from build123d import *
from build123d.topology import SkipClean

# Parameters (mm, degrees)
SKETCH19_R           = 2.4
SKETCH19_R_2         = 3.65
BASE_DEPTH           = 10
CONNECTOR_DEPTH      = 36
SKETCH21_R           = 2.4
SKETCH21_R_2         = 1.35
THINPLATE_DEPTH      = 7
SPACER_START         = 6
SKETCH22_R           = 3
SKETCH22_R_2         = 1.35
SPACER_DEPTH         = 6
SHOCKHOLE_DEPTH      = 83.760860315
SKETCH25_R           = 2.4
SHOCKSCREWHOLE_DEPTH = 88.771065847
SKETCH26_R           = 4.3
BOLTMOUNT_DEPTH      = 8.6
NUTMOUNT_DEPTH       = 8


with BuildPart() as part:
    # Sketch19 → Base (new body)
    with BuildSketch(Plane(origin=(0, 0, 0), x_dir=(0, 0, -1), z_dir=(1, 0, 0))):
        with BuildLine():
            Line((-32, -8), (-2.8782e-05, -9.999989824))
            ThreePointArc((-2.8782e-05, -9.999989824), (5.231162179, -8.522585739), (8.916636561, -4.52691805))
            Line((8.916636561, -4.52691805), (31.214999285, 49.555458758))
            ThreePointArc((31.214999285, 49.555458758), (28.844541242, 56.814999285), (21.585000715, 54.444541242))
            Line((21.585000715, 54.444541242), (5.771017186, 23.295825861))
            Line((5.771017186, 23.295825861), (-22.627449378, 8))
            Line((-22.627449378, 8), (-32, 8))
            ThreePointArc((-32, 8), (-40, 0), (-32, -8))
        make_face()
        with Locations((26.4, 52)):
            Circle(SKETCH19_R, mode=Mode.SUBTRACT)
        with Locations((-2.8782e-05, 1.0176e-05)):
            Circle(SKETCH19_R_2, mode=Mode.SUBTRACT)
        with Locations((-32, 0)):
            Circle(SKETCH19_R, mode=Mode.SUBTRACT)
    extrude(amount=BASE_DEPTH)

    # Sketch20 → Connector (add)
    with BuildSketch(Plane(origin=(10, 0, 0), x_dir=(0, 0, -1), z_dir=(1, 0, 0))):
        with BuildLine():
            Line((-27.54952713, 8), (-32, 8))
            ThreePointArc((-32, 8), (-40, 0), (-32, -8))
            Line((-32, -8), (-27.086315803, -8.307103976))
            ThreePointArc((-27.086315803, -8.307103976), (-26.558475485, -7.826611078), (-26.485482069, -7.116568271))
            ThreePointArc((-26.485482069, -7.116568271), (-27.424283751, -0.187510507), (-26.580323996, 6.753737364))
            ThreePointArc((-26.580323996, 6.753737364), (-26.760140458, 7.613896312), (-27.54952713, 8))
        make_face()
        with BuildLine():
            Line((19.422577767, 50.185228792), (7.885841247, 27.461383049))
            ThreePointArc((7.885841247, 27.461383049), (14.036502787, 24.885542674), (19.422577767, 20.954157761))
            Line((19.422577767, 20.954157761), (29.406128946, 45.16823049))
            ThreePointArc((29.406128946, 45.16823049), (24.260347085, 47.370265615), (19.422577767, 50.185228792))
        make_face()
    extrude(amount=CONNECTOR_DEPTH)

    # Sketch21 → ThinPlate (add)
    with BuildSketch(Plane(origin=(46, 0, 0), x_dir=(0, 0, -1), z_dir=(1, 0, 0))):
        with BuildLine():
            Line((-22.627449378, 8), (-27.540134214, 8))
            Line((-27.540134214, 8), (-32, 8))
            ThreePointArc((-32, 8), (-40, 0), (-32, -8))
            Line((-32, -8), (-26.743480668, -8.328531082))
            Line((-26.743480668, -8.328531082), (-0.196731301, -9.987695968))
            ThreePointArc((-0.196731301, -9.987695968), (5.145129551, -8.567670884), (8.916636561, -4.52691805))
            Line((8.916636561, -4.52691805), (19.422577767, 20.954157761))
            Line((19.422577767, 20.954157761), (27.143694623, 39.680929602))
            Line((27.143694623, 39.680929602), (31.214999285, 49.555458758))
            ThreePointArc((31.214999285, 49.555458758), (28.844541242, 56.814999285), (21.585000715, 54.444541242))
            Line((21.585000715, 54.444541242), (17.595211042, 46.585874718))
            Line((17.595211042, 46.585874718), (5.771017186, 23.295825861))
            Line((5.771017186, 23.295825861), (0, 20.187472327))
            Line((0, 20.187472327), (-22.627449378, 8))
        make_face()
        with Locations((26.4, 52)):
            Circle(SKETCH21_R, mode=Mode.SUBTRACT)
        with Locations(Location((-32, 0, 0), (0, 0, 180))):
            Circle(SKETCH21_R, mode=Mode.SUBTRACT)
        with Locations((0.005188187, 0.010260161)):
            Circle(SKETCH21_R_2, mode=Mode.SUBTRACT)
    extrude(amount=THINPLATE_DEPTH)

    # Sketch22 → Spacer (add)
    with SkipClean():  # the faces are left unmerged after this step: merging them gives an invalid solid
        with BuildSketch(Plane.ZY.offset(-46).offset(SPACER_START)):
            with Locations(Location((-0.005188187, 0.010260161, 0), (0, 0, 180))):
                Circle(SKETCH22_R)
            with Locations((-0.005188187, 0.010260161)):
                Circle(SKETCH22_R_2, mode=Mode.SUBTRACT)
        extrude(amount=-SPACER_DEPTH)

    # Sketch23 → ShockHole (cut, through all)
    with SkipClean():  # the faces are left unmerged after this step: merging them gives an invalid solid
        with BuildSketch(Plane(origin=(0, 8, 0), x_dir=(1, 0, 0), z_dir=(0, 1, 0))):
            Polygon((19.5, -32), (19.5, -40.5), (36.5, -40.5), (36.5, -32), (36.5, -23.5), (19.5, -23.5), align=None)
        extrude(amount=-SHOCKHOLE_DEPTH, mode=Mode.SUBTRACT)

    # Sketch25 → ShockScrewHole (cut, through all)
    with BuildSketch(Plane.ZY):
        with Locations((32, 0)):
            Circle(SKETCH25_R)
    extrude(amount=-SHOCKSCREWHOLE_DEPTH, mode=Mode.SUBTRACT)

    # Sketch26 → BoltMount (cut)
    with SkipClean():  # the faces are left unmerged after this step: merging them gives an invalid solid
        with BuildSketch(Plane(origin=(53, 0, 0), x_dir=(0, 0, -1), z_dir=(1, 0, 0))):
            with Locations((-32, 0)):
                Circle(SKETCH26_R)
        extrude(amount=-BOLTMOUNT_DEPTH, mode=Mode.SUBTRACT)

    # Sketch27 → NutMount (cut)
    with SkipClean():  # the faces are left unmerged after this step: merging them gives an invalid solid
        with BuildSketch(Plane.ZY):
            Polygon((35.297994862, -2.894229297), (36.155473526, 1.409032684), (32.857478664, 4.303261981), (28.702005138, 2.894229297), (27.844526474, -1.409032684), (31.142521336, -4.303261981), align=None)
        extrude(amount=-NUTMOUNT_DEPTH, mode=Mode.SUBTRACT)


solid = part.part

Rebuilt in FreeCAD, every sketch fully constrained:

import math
import FreeCAD as App
import Part
import Sketcher
Q = App.Units.Quantity


def add_polygon(sketch, points):
    """Adds a closed chain of lines whose ends are joined by coincident constraints."""
    first, n = sketch.GeometryCount, len(points)
    for a, b in zip(points, points[1:] + points[:1]):
        sketch.addGeometry(Part.LineSegment(App.Vector(*a, 0), App.Vector(*b, 0)), False)
    for i in range(n):
        sketch.addConstraint(Sketcher.Constraint("Coincident", first + i, 2, first + (i + 1) % n, 1))

doc = App.newDocument("Part")
params = doc.addObject("Spreadsheet::Sheet", "Params")
for row, (alias, value) in enumerate([
    ("sketch1_radius", "10 mm"),
    ("sketch1_radius2", "8 mm"),
    ("sketch1_diameter", "4.8 mm"),
    ("sketch1_diameter2", "7.3 mm"),
    ("sketch1_diameter3", "4.8 mm"),
    ("pad1_length", "10 mm"),
    ("sketch2_radius", "8 mm"),
    ("sketch2_radius2", "1 mm"),
    ("pad2_length", "36 mm"),
    ("sketch3_radius", "8 mm"),
    ("sketch3_diameter", "4.8 mm"),
    ("sketch3_diameter2", "2.7 mm"),
    ("sketch3_radius2", "5.4 mm"),
    ("pad3_length", "7 mm"),
    ("sketch4_diameter", "6 mm"),
    ("sketch4_diameter2", "2.7 mm"),
    ("pad4_length", "6 mm"),
    ("sketch5_width", "17 mm"),
    ("sketch6_diameter", "4.8 mm"),
    ("sketch7_diameter", "8.6 mm"),
    ("pocket3_length", "8.6 mm"),
    ("pocket4_length", "8 mm"),
], start=1):
    params.set(f"A{row}", alias)
    params.set(f"B{row}", "=" + value)
    params.setAlias(f"B{row}", alias)

body = doc.addObject("PartDesign::Body", "Body")

# Sketch on YZ plane
sketch1 = doc.addObject("Sketcher::SketchObject", "Sketch")
body.addObject(sketch1)
sketch1.AttachmentSupport = (doc.YZ_Plane, [""])
sketch1.MapMode = "FlatFace"
sketch1.addGeometry([
    Part.LineSegment(App.Vector(-8, 32, 0), App.Vector(-9.99999, 0.000029, 0)),  # 0
    Part.ArcOfCircle(Part.Circle(App.Vector(0.00001, 0.000029, 0), App.Vector(0, 0, 1), 10), math.radians(180), math.radians(243.083416)),  # 1
    Part.LineSegment(App.Vector(-4.526918, -8.916637, 0), App.Vector(49.555459, -31.214999, 0)),  # 2
    Part.ArcOfCircle(Part.Circle(App.Vector(52, -26.4, 0), App.Vector(0, 0, 1), 5.4), math.radians(-116.916584), math.radians(63.083416)),  # 3
    Part.LineSegment(App.Vector(54.444541, -21.585001, 0), App.Vector(23.295826, -5.771017, 0)),  # 4
    Part.LineSegment(App.Vector(23.295826, -5.771017, 0), App.Vector(8, 22.627449, 0)),  # 5
    Part.LineSegment(App.Vector(8, 22.627449, 0), App.Vector(8, 32, 0)),  # 6
    Part.ArcOfCircle(Part.Circle(App.Vector(0, 32, 0), App.Vector(0, 0, 1), 8), math.radians(0), math.radians(180)),  # 7
    Part.Circle(App.Vector(0, 32, 0), App.Vector(0, 0, 1), 2.4),  # 8
    Part.Circle(App.Vector(0.00001, 0.000029, 0), App.Vector(0, 0, 1), 3.65),  # 9
    Part.Circle(App.Vector(52, -26.4, 0), App.Vector(0, 0, 1), 2.4),  # 10
], False)
sketch1.addConstraint([
    Sketcher.Constraint("Coincident", 0, 2, 1, 1),
    Sketcher.Constraint("Coincident", 1, 2, 2, 1),
    Sketcher.Constraint("Coincident", 2, 2, 3, 1),
    Sketcher.Constraint("Coincident", 3, 2, 4, 1),
    Sketcher.Constraint("Coincident", 4, 2, 5, 1),
    Sketcher.Constraint("Coincident", 5, 2, 6, 1),
    Sketcher.Constraint("Coincident", 6, 2, 7, 1),
    Sketcher.Constraint("Coincident", 7, 2, 0, 1),
    Sketcher.Constraint("Vertical", 6),
    Sketcher.Constraint("Coincident", 8, 3, 7, 3),
    Sketcher.Constraint("Coincident", 9, 3, 1, 3),
    Sketcher.Constraint("Coincident", 10, 3, 3, 3),
    Sketcher.Constraint("PointOnObject", 7, 3, -2),
    Sketcher.Constraint("Radius", 1, Q("10 mm")),
    Sketcher.Constraint("Radius", 7, Q("8 mm")),
    Sketcher.Constraint("Diameter", 8, Q("4.8 mm")),
    Sketcher.Constraint("Diameter", 9, Q("7.3 mm")),
    Sketcher.Constraint("Diameter", 10, Q("4.8 mm")),
    Sketcher.Constraint("Radius", 3, Q("5.4 mm")),
    Sketcher.Constraint("DistanceX", -1, 1, 3, 3, Q("52 mm")),
    Sketcher.Constraint("DistanceY", -1, 1, 7, 3, Q("32 mm")),
    Sketcher.Constraint("DistanceY", -1, 1, 6, 2, Q("32 mm")),
    Sketcher.Constraint("DistanceY", -1, 1, 7, 2, Q("32 mm")),
    Sketcher.Constraint("DistanceY", 3, 3, -1, 1, Q("26.4 mm")),
    Sketcher.Constraint("DistanceY", 2, 2, 3, 2, Q("9.629999 mm")),
    Sketcher.Constraint("DistanceY", 2, 2, -1, 1, Q("31.214999 mm")),
    Sketcher.Constraint("DistanceY", 6, 1, 6, 2, Q("9.372551 mm")),
    Sketcher.Constraint("Distance", 0, Q("32.06241 mm")),
    Sketcher.Constraint("DistanceX", 0, 2, -1, 1, Q("9.99999 mm")),
    Sketcher.Constraint("DistanceX", 1, 2, -1, 1, Q("4.526918 mm")),
    Sketcher.Constraint("DistanceY", 3, 3, 1, 3, Q("26.400029 mm")),
    Sketcher.Constraint("DistanceY", 1, 2, 4, 2, Q("3.145619 mm")),
    Sketcher.Constraint("Distance", 4, Q("34.933144 mm")),
])
sketch1.setExpression("Constraints[13]", "Params.sketch1_radius")
sketch1.setExpression("Constraints[14]", "Params.sketch1_radius2")
sketch1.setExpression("Constraints[15]", "Params.sketch1_diameter")
sketch1.setExpression("Constraints[16]", "Params.sketch1_diameter2")
sketch1.setExpression("Constraints[17]", "Params.sketch1_diameter3")
pad1 = doc.addObject("PartDesign::Pad", "Pad")
body.addObject(pad1)
pad1.Profile = sketch1
pad1.setExpression("Length", "Params.pad1_length")

# Sketch on YZ plane
sketch2 = doc.addObject("Sketcher::SketchObject", "Sketch001")
body.addObject(sketch2)
sketch2.AttachmentSupport = (doc.YZ_Plane, [""])
sketch2.MapMode = "FlatFace"
sketch2.AttachmentOffset = App.Placement(App.Vector(0, 0, 10), App.Rotation())
sketch2.addGeometry([
    Part.LineSegment(App.Vector(8, 27.5, 0), App.Vector(8, 32, 0)),  # 0
    Part.ArcOfCircle(Part.Circle(App.Vector(0, 32, 0), App.Vector(0, 0, 1), 8), math.radians(0), math.radians(180)),  # 1
    Part.LineSegment(App.Vector(-8, 32, 0), App.Vector(-8.3, 27.1, 0)),  # 2
    Part.ArcOfCircle(Part.Circle(App.Vector(-7.4, 27.5, 0), App.Vector(0, 0, 1), 1), math.radians(-159), math.radians(-75)),  # 3
    Part.ArcOfCircle(Part.Circle(App.Vector(0, 0, 0), App.Vector(0, 0, 1), 27.4), math.radians(76), math.radians(105)),  # 4
    Part.ArcOfCircle(Part.Circle(App.Vector(7, 27.5, 0), App.Vector(0, 0, 1), 1), math.radians(-104), math.radians(0)),  # 5
    Part.LineSegment(App.Vector(50.2, -19.4, 0), App.Vector(27.5, -7.9, 0)),  # 6
    Part.ArcOfCircle(Part.Circle(App.Vector(0, 0, 0), App.Vector(0, 0, 1), 28.6), math.radians(-43), math.radians(-16)),  # 7
    Part.LineSegment(App.Vector(21, -19.4, 0), App.Vector(45.2, -29.4, 0)),  # 8
    Part.ArcOfCircle(Part.Circle(App.Vector(88.2, -44.8, 0), App.Vector(0, 0, 1), 45.7), math.radians(146.29), math.radians(160.35)),  # 9
], False)
sketch2.addConstraint([
    Sketcher.Constraint("Tangent", 0, 2, 1, 1),
    Sketcher.Constraint("Coincident", 1, 2, 2, 1),
    Sketcher.Constraint("Coincident", 2, 2, 3, 1),
    Sketcher.Constraint("Tangent", 3, 2, 4, 2),
    Sketcher.Constraint("Tangent", 4, 1, 5, 1),
    Sketcher.Constraint("Tangent", 5, 2, 0, 1),
    Sketcher.Constraint("Coincident", 6, 2, 7, 2),
    Sketcher.Constraint("Coincident", 7, 1, 8, 1),
    Sketcher.Constraint("Coincident", 8, 2, 9, 2),
    Sketcher.Constraint("Coincident", 9, 1, 6, 1),
    Sketcher.Constraint("Vertical", 0),
    Sketcher.Constraint("Coincident", 7, 3, 4, 3),
    Sketcher.Constraint("Equal", 3, 5),
    Sketcher.Constraint("Symmetric", 0, 2, 1, 2, -2),
    Sketcher.Constraint("Horizontal", 7, 1, 9, 1),
    Sketcher.Constraint("Radius", 1, Q("8 mm")),
    Sketcher.Constraint("Radius", 3, Q("1 mm")),
    Sketcher.Constraint("DistanceY", -1, 1, 1, 3, Q("32 mm")),
    Sketcher.Constraint("Radius", 7, Q("28.571208 mm")),
    Sketcher.Constraint("Radius", 9, Q("45.669791 mm")),
    Sketcher.Constraint("Radius", 4, Q("27.424896 mm")),
    Sketcher.Constraint("DistanceX", 8, 2, 9, 1, Q("5.016998 mm")),
    Sketcher.Constraint("DistanceY", 4, 3, 3, 3, Q("27.451198 mm")),
    Sketcher.Constraint("DistanceY", 3, 3, 5, 3, Q("0.0983 mm")),
    Sketcher.Constraint("DistanceY", 7, 1, 4, 1, Q("46.002902 mm")),
    Sketcher.Constraint("Distance", 2, Q("4.923272 mm")),
    Sketcher.Constraint("Distance", 6, Q("25.484691 mm")),
    Sketcher.Constraint("Distance", 8, Q("26.191461 mm")),
    Sketcher.Constraint("DistanceY", 0, 1, 0, 2, Q("4.450473 mm")),
    Sketcher.Constraint("DistanceY", 6, 2, -1, 1, Q("7.885841 mm")),
])
sketch2.setExpression("Constraints[15]", "Params.sketch2_radius")
sketch2.setExpression("Constraints[16]", "Params.sketch2_radius2")
pad2 = doc.addObject("PartDesign::Pad", "Pad001")
body.addObject(pad2)
pad2.Profile = sketch2
pad2.setExpression("Length", "Params.pad2_length")

# Sketch on YZ plane
sketch3 = doc.addObject("Sketcher::SketchObject", "Sketch002")
body.addObject(sketch3)
sketch3.AttachmentSupport = (doc.YZ_Plane, [""])
sketch3.MapMode = "FlatFace"
sketch3.AttachmentOffset = App.Placement(App.Vector(0, 0, 46), App.Rotation())
sketch3.addGeometry([
    Part.LineSegment(App.Vector(8, 22.6, 0), App.Vector(8, 32, 0)),  # 0
    Part.ArcOfCircle(Part.Circle(App.Vector(0, 32, 0), App.Vector(0, 0, 1), 8), math.radians(0), math.radians(180)),  # 1
    Part.LineSegment(App.Vector(-8, 32, 0), App.Vector(-8.3, 26.7, 0)),  # 2
    Part.LineSegment(App.Vector(-8.3, 26.7, 0), App.Vector(-10, 0.2, 0)),  # 3
    Part.ArcOfCircle(Part.Circle(App.Vector(0, 0, 0), App.Vector(0, 0, 1), 10), math.radians(179), math.radians(243)),  # 4
    Part.LineSegment(App.Vector(-4.5, -8.9, 0), App.Vector(21, -19.4, 0)),  # 5
    Part.LineSegment(App.Vector(21, -19.4, 0), App.Vector(39.7, -27.1, 0)),  # 6
    Part.LineSegment(App.Vector(39.7, -27.1, 0), App.Vector(49.6, -31.2, 0)),  # 7
    Part.ArcOfCircle(Part.Circle(App.Vector(52, -26.4, 0), App.Vector(0, 0, 1), 5.4), math.radians(-117), math.radians(63)),  # 8
    Part.LineSegment(App.Vector(54.4, -21.6, 0), App.Vector(46.6, -17.6, 0)),  # 9
    Part.LineSegment(App.Vector(46.6, -17.6, 0), App.Vector(23.3, -5.8, 0)),  # 10
    Part.LineSegment(App.Vector(23.3, -5.8, 0), App.Vector(20.2, 0, 0)),  # 11
    Part.LineSegment(App.Vector(20.2, 0, 0), App.Vector(8, 22.6, 0)),  # 12
    Part.Circle(App.Vector(0, 32, 0), App.Vector(0, 0, 1), 2.4),  # 13
    Part.Circle(App.Vector(0, 0, 0), App.Vector(0, 0, 1), 1.4),  # 14
    Part.Circle(App.Vector(52, -26.4, 0), App.Vector(0, 0, 1), 2.4),  # 15
], False)
sketch3.addConstraint([
    Sketcher.Constraint("Tangent", 0, 2, 1, 1),
    Sketcher.Constraint("Coincident", 1, 2, 2, 1),
    Sketcher.Constraint("Coincident", 2, 2, 3, 1),
    Sketcher.Constraint("Coincident", 3, 2, 4, 1),
    Sketcher.Constraint("Coincident", 4, 2, 5, 1),
    Sketcher.Constraint("Coincident", 5, 2, 6, 1),
    Sketcher.Constraint("Coincident", 6, 2, 7, 1),
    Sketcher.Constraint("Coincident", 7, 2, 8, 1),
    Sketcher.Constraint("Tangent", 8, 2, 9, 1),
    Sketcher.Constraint("Coincident", 9, 2, 10, 1),
    Sketcher.Constraint("Coincident", 10, 2, 11, 1),
    Sketcher.Constraint("Coincident", 11, 2, 12, 1),
    Sketcher.Constraint("Coincident", 12, 2, 0, 1),
    Sketcher.Constraint("Vertical", 0),
    Sketcher.Constraint("Coincident", 13, 3, 1, 3),
    Sketcher.Constraint("Coincident", 14, 3, 4, 3),
    Sketcher.Constraint("Coincident", 15, 3, 8, 3),
    Sketcher.Constraint("Equal", 13, 15),
    Sketcher.Constraint("Symmetric", 0, 2, 1, 2, -2),
    Sketcher.Constraint("PointOnObject", 11, 2, -1),
    Sketcher.Constraint("Parallel", 2, 3),
    Sketcher.Constraint("Parallel", 5, 6),
    Sketcher.Constraint("Parallel", 6, 7),
    Sketcher.Constraint("Parallel", 9, 10),
    Sketcher.Constraint("Parallel", 11, 12),
    Sketcher.Constraint("Radius", 1, Q("8 mm")),
    Sketcher.Constraint("Diameter", 13, Q("4.8 mm")),
    Sketcher.Constraint("Diameter", 14, Q("2.7 mm")),
    Sketcher.Constraint("Radius", 8, Q("5.4 mm")),
    Sketcher.Constraint("DistanceY", -1, 1, 1, 3, Q("32 mm")),
    Sketcher.Constraint("DistanceX", -1, 1, 8, 3, Q("52 mm")),
    Sketcher.Constraint("DistanceY", 8, 3, -1, 1, Q("26.4 mm")),
    Sketcher.Constraint("DistanceY", 7, 2, 8, 2, Q("9.629999 mm")),
    Sketcher.Constraint("DistanceY", 7, 2, -1, 1, Q("31.214999 mm")),
    Sketcher.Constraint("Radius", 4, Q("9.999995 mm")),
    Sketcher.Constraint("DistanceY", 0, 1, 0, 2, Q("9.372551 mm")),
    Sketcher.Constraint("DistanceX", 5, 2, 7, 2, Q("28.601301 mm")),
    Sketcher.Constraint("Distance", 5, Q("27.561931 mm")),
    Sketcher.Constraint("Distance", 6, Q("20.256052 mm")),
    Sketcher.Constraint("Distance", 7, Q("10.68091 mm")),
    Sketcher.Constraint("Distance", 9, Q("8.813459 mm")),
    Sketcher.Constraint("DistanceX", -1, 1, 4, 3, Q("0.01026 mm")),
    Sketcher.Constraint("DistanceX", 2, 2, -1, 1, Q("8.328531 mm")),
    Sketcher.Constraint("DistanceY", -1, 1, 2, 2, Q("26.743481 mm")),
    Sketcher.Constraint("DistanceX", 5, 2, 10, 2, Q("2.341668 mm")),
])
sketch3.setExpression("Constraints[25]", "Params.sketch3_radius")
sketch3.setExpression("Constraints[26]", "Params.sketch3_diameter")
sketch3.setExpression("Constraints[27]", "Params.sketch3_diameter2")
sketch3.setExpression("Constraints[28]", "Params.sketch3_radius2")
pad3 = doc.addObject("PartDesign::Pad", "Pad002")
body.addObject(pad3)
pad3.Profile = sketch3
pad3.setExpression("Length", "Params.pad3_length")

# Sketch on YZ plane
sketch4 = doc.addObject("Sketcher::SketchObject", "Sketch003")
body.addObject(sketch4)
sketch4.AttachmentSupport = (doc.YZ_Plane, [""])
sketch4.MapMode = "FlatFace"
sketch4.AttachmentOffset = App.Placement(App.Vector(0, 0, 40), App.Rotation())
sketch4.addGeometry([
    Part.Circle(App.Vector(0, 0, 0), App.Vector(0, 0, 1), 3),
    Part.Circle(App.Vector(0, 0, 0), App.Vector(0, 0, 1), 1.4),
], False)
sketch4.addConstraint([
    Sketcher.Constraint("Coincident", 1, 3, 0, 3),
    Sketcher.Constraint("Diameter", 0, Q("6 mm")),
    Sketcher.Constraint("Diameter", 1, Q("2.7 mm")),
    Sketcher.Constraint("DistanceX", -1, 1, 0, 3, Q("0.01026 mm")),
    Sketcher.Constraint("DistanceY", 0, 3, -1, 1, Q("0.005188 mm")),
])
sketch4.setExpression("Constraints[1]", "Params.sketch4_diameter")
sketch4.setExpression("Constraints[2]", "Params.sketch4_diameter2")
pad4 = doc.addObject("PartDesign::Pad", "Pad003")
body.addObject(pad4)
pad4.Profile = sketch4
pad4.setExpression("Length", "Params.pad4_length")

# Sketch on XZ plane
sketch5 = doc.addObject("Sketcher::SketchObject", "Sketch004")
body.addObject(sketch5)
sketch5.AttachmentSupport = (doc.XZ_Plane, [""])
sketch5.MapMode = "FlatFace"
sketch5.AttachmentOffset = App.Placement(App.Vector(0, 0, -8), App.Rotation())
add_polygon(sketch5, [(20, 40), (36, 40), (36, 24), (20, 24)])  # lines 0-3
sketch5.addConstraint([
    Sketcher.Constraint("Horizontal", 0),
    Sketcher.Constraint("Vertical", 1),
    Sketcher.Constraint("Horizontal", 2),
    Sketcher.Constraint("Vertical", 3),
    Sketcher.Constraint("Equal", 2, 1),
    Sketcher.Constraint("DistanceX", 0, 1, 0, 2, Q("17 mm")),
    Sketcher.Constraint("DistanceX", -1, 1, 0, 2, Q("36.5 mm")),
    Sketcher.Constraint("DistanceY", -1, 1, 0, 2, Q("40.5 mm")),
])
sketch5.setExpression("Constraints[9]", "Params.sketch5_width")
pocket1 = doc.addObject("PartDesign::Pocket", "Pocket")
body.addObject(pocket1)
pocket1.Profile = sketch5
pocket1.Type = "ThroughAll"
pocket1.Reversed = True

# Sketch on YZ plane
sketch6 = doc.addObject("Sketcher::SketchObject", "Sketch005")
body.addObject(sketch6)
sketch6.AttachmentSupport = (doc.YZ_Plane, [""])
sketch6.MapMode = "FlatFace"
sketch6.addGeometry(Part.Circle(App.Vector(0, 32, 0), App.Vector(0, 0, 1), 2.4), False)
sketch6.addConstraint([
    Sketcher.Constraint("PointOnObject", 0, 3, -2),
    Sketcher.Constraint("Diameter", 0, Q("4.8 mm")),
    Sketcher.Constraint("DistanceY", -1, 1, 0, 3, Q("32 mm")),
])
sketch6.setExpression("Constraints[1]", "Params.sketch6_diameter")
pocket2 = doc.addObject("PartDesign::Pocket", "Pocket001")
body.addObject(pocket2)
pocket2.Profile = sketch6
pocket2.Type = "ThroughAll"
pocket2.Reversed = True

# Sketch on YZ plane
sketch7 = doc.addObject("Sketcher::SketchObject", "Sketch006")
body.addObject(sketch7)
sketch7.AttachmentSupport = (doc.YZ_Plane, [""])
sketch7.MapMode = "FlatFace"
sketch7.AttachmentOffset = App.Placement(App.Vector(0, 0, 53), App.Rotation())
sketch7.addGeometry(Part.Circle(App.Vector(0, 32, 0), App.Vector(0, 0, 1), 4.3), False)
sketch7.addConstraint([
    Sketcher.Constraint("PointOnObject", 0, 3, -2),
    Sketcher.Constraint("Diameter", 0, Q("8.6 mm")),
    Sketcher.Constraint("DistanceY", -1, 1, 0, 3, Q("32 mm")),
])
sketch7.setExpression("Constraints[1]", "Params.sketch7_diameter")
pocket3 = doc.addObject("PartDesign::Pocket", "Pocket002")
body.addObject(pocket3)
pocket3.Profile = sketch7
pocket3.setExpression("Length", "Params.pocket3_length")

# Sketch on YZ plane
sketch8 = doc.addObject("Sketcher::SketchObject", "Sketch007")
body.addObject(sketch8)
sketch8.AttachmentSupport = (doc.YZ_Plane, [""])
sketch8.MapMode = "FlatFace"
add_polygon(sketch8, [(-2.9, 35.3), (1.4, 36.2), (4.3, 32.9), (2.9, 28.7), (-1.4, 27.8), (-4.3, 31.1)])  # lines 0-5
sketch8.addConstraint([
    Sketcher.Constraint("Parallel", 0, 3),
    Sketcher.Constraint("Parallel", 1, 4),
    Sketcher.Constraint("Parallel", 2, 5),
    Sketcher.Constraint("Equal", 0, 1),
    Sketcher.Constraint("Equal", 1, 2),
    Sketcher.Constraint("Equal", 2, 3),
    Sketcher.Constraint("DistanceX", -1, 1, 1, 2, Q("4.303262 mm")),
    Sketcher.Constraint("DistanceY", -1, 1, 1, 2, Q("32.857479 mm")),
    Sketcher.Constraint("DistanceX", -1, 1, 2, 2, Q("2.894229 mm")),
    Sketcher.Constraint("DistanceX", 4, 2, -1, 1, Q("4.303262 mm")),
    Sketcher.Constraint("DistanceY", -1, 1, 4, 2, Q("31.142521 mm")),
    Sketcher.Constraint("DistanceX", 0, 2, 1, 2, Q("2.894229 mm")),
])
pocket4 = doc.addObject("PartDesign::Pocket", "Pocket003")
body.addObject(pocket4)
pocket4.Profile = sketch8
pocket4.setExpression("Length", "Params.pocket4_length")
pocket4.Reversed = True

doc.recompute()
